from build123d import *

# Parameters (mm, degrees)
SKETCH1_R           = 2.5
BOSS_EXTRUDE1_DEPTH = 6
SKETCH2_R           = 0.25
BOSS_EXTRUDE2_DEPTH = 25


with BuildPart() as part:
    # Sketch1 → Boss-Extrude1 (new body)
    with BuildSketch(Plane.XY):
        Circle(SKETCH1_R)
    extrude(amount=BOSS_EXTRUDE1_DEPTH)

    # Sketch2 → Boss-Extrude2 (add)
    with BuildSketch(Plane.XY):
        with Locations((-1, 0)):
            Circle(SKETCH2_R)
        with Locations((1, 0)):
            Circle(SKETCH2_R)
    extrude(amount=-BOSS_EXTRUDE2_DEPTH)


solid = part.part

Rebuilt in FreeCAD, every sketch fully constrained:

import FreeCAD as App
import Part
import Sketcher

doc = App.newDocument("Part")
body = doc.addObject("PartDesign::Body", "Body")

# Sketch on XY plane
sketch1 = doc.addObject("Sketcher::SketchObject", "Sketch")
body.addObject(sketch1)
sketch1.AttachmentSupport = (doc.XY_Plane, [""])
sketch1.MapMode = "FlatFace"
sketch1.addGeometry(Part.Circle(App.Vector(0, 0, 0), App.Vector(0, 0, 1), 2.5), False)
sketch1.addConstraint(Sketcher.Constraint("Coincident", 0, 3, -1, 1))
sketch1.addConstraint(Sketcher.Constraint("Diameter", 0, 5.0))
pad1 = doc.addObject("PartDesign::Pad", "Pad")
body.addObject(pad1)
pad1.Profile = sketch1
pad1.Length = 6

# Sketch on XY plane
sketch2 = doc.addObject("Sketcher::SketchObject", "Sketch001")
body.addObject(sketch2)
sketch2.AttachmentSupport = (doc.XY_Plane, [""])
sketch2.MapMode = "FlatFace"
sketch2.addGeometry(Part.Circle(App.Vector(-1, 0, 0), App.Vector(0, 0, 1), 0.25), False)
sketch2.addGeometry(Part.Circle(App.Vector(1, 0, 0), App.Vector(0, 0, 1), 0.25), False)
sketch2.addConstraint(Sketcher.Constraint("Equal", 0, 1))
sketch2.addConstraint(Sketcher.Constraint("Symmetric", 0, 3, 1, 3, -1, 1))
sketch2.addConstraint(Sketcher.Constraint("PointOnObject", 0, 3, -1))
sketch2.addConstraint(Sketcher.Constraint("Diameter", 0, 0.5))
sketch2.addConstraint(Sketcher.Constraint("DistanceX", 0, 3, -1, 1, 1.0))
pad2 = doc.addObject("PartDesign::Pad", "Pad001")
body.addObject(pad2)
pad2.Profile = sketch2
pad2.Length = 25
pad2.Reversed = True

doc.recompute()
